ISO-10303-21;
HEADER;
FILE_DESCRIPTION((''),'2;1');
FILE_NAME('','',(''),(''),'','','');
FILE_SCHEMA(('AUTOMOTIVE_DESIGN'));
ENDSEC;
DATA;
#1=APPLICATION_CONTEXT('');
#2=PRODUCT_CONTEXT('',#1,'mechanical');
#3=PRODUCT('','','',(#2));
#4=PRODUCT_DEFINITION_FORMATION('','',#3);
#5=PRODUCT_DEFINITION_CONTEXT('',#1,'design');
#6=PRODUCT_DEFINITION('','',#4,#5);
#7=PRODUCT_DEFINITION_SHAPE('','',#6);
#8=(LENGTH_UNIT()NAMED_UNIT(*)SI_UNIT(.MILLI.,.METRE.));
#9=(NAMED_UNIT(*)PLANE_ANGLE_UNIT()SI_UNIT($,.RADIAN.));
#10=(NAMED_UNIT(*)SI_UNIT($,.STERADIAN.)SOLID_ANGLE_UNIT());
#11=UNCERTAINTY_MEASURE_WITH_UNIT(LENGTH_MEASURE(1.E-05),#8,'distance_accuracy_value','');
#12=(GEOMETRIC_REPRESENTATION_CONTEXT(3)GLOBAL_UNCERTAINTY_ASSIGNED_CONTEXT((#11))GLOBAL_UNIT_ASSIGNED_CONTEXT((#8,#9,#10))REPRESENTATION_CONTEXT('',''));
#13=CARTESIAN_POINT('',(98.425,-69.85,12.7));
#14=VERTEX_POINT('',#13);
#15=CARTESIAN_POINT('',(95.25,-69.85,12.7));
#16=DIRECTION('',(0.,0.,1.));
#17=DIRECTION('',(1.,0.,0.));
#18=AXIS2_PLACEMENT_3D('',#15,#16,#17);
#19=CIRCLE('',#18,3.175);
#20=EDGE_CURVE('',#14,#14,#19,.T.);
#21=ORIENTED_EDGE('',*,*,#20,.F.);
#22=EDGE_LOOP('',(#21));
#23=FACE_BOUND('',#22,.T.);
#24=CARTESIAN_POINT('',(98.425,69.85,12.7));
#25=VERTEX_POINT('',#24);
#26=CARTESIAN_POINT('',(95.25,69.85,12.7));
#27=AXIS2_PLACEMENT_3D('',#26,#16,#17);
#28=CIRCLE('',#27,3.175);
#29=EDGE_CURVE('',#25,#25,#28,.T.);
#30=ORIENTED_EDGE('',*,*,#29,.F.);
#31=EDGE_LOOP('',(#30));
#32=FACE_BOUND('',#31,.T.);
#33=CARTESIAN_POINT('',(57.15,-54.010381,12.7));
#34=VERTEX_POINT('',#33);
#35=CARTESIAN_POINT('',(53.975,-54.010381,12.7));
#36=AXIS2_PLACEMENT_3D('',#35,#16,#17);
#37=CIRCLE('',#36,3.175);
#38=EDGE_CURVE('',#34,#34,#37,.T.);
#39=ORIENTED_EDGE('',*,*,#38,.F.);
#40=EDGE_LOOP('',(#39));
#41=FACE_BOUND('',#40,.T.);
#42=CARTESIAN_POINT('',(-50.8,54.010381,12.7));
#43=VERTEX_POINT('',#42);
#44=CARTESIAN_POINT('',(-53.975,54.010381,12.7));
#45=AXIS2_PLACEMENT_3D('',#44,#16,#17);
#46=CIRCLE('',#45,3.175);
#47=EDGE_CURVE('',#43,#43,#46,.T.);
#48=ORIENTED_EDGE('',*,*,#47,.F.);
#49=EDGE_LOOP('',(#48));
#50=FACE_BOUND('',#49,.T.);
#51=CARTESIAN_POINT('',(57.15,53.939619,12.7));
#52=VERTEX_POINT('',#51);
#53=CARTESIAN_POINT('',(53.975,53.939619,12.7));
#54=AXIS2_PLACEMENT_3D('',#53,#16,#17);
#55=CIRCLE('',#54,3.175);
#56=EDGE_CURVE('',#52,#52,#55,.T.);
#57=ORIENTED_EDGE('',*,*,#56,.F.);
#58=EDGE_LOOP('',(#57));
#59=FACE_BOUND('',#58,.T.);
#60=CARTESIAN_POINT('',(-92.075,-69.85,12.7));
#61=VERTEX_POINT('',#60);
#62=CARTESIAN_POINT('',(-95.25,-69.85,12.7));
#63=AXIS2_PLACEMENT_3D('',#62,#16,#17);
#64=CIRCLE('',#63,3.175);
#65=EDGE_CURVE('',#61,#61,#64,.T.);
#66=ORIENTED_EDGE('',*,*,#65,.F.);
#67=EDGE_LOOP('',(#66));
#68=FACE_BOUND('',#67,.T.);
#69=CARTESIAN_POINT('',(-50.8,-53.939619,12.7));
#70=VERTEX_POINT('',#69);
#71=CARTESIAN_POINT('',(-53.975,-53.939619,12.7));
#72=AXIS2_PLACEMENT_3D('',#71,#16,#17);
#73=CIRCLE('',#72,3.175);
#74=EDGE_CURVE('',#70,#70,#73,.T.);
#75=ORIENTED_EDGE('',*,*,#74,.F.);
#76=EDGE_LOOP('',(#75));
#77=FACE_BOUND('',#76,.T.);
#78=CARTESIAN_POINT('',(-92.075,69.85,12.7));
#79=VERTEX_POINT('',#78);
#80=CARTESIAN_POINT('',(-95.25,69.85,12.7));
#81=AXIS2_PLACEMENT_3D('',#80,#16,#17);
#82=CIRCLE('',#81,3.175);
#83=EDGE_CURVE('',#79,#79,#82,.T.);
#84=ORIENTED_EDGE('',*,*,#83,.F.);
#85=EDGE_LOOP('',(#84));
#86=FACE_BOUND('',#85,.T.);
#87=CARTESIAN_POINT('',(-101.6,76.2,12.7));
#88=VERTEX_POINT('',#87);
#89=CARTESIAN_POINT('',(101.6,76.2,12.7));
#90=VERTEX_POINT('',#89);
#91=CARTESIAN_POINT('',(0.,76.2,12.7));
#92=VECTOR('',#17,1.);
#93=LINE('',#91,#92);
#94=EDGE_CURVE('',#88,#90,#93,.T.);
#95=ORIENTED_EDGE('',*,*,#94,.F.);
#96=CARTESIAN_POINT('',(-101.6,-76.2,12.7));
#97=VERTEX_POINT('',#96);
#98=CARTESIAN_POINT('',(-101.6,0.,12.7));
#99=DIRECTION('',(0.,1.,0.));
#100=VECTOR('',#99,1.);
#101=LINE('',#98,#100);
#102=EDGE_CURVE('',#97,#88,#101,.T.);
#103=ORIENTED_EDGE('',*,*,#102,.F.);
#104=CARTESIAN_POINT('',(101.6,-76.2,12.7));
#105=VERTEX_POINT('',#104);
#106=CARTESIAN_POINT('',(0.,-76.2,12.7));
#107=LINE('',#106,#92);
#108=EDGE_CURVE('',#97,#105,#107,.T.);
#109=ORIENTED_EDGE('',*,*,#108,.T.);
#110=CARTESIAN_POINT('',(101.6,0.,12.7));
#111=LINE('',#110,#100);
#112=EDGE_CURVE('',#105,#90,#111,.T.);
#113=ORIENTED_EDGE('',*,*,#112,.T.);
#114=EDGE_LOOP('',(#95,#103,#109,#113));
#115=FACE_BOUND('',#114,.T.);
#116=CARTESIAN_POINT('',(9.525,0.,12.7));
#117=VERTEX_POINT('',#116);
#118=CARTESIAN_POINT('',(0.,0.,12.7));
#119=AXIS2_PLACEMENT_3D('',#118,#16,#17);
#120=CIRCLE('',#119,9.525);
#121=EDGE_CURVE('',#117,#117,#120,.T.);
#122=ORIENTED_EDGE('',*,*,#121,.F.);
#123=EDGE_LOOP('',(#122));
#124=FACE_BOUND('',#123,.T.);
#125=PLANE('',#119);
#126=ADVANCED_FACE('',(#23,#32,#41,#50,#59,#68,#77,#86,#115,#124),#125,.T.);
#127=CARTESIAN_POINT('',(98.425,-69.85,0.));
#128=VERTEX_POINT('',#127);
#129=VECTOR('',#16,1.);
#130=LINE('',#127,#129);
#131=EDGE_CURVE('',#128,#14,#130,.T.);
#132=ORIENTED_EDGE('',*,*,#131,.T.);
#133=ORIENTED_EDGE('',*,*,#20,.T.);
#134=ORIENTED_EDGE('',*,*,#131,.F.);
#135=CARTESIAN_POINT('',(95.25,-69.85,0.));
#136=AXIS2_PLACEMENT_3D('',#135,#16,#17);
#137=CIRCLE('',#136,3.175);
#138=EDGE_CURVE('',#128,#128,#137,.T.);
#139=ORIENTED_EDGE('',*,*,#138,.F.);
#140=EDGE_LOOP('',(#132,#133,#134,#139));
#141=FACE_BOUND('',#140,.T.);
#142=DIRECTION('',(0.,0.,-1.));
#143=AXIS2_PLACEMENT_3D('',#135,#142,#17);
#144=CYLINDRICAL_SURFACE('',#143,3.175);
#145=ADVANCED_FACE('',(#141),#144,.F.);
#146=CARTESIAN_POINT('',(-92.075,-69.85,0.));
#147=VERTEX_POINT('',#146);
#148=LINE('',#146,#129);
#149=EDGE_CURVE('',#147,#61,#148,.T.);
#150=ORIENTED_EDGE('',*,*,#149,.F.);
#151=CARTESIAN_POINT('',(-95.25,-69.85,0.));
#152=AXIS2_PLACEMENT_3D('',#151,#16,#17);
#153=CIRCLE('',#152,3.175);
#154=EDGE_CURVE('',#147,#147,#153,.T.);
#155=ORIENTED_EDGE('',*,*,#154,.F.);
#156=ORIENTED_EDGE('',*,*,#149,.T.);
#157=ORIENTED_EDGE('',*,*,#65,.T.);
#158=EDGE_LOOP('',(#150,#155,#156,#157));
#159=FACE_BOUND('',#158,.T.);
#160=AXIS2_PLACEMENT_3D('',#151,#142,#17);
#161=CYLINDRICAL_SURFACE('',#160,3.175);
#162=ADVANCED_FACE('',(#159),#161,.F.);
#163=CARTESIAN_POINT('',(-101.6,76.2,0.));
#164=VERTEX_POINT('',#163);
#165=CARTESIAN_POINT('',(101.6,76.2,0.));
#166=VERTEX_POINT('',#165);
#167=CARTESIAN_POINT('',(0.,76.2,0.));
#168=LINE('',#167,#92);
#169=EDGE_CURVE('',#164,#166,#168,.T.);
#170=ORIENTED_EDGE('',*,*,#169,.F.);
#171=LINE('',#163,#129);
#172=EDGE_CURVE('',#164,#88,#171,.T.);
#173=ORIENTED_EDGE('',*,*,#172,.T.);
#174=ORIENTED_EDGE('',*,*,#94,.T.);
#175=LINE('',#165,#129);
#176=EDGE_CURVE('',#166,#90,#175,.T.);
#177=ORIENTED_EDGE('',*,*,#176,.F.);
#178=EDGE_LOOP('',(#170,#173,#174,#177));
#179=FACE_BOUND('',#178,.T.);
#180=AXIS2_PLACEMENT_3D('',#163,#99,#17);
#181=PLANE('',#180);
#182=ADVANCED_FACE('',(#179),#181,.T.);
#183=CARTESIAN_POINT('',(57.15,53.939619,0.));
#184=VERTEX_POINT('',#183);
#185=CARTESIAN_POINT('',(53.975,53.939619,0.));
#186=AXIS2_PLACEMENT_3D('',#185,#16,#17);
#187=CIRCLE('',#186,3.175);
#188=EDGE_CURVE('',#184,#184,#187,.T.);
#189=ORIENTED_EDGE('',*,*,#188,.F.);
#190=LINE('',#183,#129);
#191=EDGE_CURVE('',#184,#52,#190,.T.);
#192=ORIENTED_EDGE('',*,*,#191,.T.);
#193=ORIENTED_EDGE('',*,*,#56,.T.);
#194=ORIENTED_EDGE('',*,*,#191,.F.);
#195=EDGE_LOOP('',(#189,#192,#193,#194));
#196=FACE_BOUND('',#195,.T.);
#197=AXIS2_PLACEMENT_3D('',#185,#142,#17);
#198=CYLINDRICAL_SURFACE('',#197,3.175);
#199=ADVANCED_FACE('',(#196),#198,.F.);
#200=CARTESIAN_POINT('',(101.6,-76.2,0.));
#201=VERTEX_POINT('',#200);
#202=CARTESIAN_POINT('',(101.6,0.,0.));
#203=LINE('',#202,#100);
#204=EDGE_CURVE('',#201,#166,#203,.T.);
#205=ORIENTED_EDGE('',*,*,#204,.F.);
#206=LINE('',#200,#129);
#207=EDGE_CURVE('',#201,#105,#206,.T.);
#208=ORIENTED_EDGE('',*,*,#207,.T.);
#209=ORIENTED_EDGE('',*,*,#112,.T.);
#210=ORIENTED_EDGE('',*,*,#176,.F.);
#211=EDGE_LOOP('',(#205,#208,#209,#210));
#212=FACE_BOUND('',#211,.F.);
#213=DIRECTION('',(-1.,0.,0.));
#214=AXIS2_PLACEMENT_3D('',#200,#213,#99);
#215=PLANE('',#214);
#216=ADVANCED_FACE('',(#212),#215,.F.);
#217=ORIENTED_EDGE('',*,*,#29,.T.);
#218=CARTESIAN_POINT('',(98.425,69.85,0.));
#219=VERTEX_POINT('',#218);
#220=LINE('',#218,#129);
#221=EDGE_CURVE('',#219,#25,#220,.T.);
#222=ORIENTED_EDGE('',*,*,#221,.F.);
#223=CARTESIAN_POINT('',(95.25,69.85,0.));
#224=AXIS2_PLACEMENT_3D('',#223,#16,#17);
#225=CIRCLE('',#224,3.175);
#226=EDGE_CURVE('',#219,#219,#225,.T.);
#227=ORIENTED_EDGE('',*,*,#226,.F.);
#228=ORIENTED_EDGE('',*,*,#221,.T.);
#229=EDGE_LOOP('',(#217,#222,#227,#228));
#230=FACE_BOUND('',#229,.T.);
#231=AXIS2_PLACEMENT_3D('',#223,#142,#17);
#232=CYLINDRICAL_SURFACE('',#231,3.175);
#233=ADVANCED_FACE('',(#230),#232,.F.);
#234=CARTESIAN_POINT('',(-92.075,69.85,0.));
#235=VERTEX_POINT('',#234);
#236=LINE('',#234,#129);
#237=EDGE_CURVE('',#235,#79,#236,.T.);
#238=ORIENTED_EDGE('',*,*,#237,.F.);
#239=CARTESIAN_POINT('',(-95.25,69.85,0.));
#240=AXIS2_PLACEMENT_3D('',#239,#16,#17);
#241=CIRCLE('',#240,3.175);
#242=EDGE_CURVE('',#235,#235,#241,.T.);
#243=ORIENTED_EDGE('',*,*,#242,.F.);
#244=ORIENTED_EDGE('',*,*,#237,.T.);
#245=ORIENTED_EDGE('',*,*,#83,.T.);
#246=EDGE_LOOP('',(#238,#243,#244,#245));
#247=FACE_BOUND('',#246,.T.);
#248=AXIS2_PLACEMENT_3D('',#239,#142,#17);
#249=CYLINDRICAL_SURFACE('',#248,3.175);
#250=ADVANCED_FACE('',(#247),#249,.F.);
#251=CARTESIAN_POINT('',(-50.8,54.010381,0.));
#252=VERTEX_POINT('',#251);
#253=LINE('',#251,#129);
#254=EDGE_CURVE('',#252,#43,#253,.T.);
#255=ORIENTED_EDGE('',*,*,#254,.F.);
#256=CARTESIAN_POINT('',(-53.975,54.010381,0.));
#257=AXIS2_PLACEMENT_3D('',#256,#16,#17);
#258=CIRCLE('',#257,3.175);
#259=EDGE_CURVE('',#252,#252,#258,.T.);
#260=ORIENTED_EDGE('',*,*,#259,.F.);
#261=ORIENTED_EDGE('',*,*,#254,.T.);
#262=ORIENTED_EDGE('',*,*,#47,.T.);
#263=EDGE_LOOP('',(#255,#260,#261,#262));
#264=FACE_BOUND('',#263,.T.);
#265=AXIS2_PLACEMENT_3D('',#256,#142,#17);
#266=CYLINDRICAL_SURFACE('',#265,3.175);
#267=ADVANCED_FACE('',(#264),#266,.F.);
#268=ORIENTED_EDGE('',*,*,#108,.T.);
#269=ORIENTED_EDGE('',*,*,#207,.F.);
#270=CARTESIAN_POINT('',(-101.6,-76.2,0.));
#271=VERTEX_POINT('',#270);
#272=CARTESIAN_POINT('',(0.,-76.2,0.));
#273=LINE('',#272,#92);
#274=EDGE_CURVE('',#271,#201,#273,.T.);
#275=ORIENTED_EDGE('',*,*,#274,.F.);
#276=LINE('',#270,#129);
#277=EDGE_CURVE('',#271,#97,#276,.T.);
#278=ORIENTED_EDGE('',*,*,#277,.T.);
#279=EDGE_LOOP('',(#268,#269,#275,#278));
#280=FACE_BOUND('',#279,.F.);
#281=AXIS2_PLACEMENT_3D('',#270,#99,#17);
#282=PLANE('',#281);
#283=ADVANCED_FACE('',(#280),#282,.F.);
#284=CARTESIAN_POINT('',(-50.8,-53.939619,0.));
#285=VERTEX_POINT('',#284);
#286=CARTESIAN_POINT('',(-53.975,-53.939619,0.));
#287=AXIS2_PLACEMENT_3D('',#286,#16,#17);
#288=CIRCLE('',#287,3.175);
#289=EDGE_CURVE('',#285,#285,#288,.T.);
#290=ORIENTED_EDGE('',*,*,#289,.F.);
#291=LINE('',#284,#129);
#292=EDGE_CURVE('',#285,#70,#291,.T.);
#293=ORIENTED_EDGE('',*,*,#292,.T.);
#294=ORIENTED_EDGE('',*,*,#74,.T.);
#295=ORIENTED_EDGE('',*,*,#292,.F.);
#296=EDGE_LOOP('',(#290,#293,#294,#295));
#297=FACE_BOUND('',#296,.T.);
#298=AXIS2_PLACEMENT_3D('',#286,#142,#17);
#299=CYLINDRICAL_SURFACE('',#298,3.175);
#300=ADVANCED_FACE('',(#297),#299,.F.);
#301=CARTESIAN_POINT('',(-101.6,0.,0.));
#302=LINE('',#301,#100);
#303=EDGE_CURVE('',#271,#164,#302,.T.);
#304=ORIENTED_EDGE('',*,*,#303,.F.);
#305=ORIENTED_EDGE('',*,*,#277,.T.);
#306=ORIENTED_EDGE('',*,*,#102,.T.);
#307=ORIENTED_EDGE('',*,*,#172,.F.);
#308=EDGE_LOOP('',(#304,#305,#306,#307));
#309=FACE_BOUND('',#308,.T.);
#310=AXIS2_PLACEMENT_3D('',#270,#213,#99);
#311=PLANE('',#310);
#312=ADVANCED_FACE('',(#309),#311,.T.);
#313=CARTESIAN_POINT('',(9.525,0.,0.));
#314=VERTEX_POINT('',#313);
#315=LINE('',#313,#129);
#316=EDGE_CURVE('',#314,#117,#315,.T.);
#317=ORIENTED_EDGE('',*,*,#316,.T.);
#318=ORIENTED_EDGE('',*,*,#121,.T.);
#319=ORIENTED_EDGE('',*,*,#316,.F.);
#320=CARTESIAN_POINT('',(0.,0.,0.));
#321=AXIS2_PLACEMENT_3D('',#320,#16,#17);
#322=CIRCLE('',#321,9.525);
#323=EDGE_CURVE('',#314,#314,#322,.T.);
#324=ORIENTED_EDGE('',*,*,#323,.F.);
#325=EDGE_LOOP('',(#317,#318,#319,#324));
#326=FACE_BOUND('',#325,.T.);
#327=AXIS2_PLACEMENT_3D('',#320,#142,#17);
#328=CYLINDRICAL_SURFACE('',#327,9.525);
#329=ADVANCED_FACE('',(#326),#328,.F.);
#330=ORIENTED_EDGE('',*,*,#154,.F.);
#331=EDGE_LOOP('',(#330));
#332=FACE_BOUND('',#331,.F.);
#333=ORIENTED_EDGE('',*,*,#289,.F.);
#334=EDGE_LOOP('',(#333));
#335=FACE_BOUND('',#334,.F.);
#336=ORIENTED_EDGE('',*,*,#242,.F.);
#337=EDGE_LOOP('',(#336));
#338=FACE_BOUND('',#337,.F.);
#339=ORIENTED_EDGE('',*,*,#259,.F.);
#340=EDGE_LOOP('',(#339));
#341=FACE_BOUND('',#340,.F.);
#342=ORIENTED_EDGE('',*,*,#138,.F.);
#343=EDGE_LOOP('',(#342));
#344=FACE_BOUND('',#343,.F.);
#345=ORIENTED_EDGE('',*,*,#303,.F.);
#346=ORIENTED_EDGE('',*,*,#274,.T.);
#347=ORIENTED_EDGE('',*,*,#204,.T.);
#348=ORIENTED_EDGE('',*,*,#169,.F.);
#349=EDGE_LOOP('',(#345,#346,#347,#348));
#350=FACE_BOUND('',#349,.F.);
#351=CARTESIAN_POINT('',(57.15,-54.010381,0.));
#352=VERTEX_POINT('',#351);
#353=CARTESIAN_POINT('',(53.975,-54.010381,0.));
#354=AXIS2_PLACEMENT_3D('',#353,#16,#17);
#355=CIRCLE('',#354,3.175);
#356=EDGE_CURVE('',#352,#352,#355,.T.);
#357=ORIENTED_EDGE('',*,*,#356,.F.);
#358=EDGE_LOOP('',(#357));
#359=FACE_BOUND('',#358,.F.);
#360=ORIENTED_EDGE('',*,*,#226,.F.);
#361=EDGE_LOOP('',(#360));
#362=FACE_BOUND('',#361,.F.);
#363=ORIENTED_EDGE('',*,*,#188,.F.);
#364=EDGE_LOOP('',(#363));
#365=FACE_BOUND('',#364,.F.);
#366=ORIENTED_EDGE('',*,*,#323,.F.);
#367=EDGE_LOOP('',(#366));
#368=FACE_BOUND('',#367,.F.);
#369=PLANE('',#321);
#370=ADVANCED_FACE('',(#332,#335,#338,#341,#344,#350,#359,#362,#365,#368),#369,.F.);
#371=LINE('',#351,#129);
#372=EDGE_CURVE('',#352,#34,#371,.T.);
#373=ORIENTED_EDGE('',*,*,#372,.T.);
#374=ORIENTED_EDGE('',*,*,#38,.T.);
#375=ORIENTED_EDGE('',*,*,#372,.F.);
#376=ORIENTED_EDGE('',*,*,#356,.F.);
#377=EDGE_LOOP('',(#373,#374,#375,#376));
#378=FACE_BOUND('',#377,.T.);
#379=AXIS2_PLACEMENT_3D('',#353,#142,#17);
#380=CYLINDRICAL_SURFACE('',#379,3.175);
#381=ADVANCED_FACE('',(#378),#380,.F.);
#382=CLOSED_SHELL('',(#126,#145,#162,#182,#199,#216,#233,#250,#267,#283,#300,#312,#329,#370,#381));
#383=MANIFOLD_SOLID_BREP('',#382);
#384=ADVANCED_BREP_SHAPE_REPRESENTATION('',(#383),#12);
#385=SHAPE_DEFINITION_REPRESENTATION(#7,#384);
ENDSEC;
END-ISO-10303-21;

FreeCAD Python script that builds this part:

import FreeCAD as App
import Part
import Sketcher
from FreeCAD import Vector
Q = App.Units.Quantity

doc = App.newDocument("Part")
body = doc.addObject("PartDesign::Body", "Body")

sketch1 = body.newObject("Sketcher::SketchObject", "Sketch")
sketch1.AttachmentSupport = (doc.getObject("XY_Plane"), [""])
sketch1.MapMode = "FlatFace"
sketch1.addGeometry([
    Part.LineSegment(Vector(-101.6, 76.2, 0), Vector(-101.6, -76.2, 0)),
    Part.LineSegment(Vector(-101.6, -76.2, 0), Vector(101.6, -76.2, 0)),
    Part.LineSegment(Vector(101.6, -76.2, 0), Vector(101.6, 76.2, 0)),
    Part.LineSegment(Vector(101.6, 76.2, 0), Vector(-101.6, 76.2, 0)),
    Part.Circle(Vector(-95.25, -69.85, 0), Vector(0, 0, 1), 3.175),
    Part.Circle(Vector(-53.975, -53.939619, 0), Vector(0, 0, 1), 3.175),
    Part.Circle(Vector(95.25, -69.85, 0), Vector(0, 0, 1), 3.175),
    Part.Circle(Vector(53.975, -54.010381, 0), Vector(0, 0, 1), 3.175),
    Part.Circle(Vector(-53.975, 54.010381, 0), Vector(0, 0, 1), 3.175),
    Part.Circle(Vector(-95.25, 69.85, 0), Vector(0, 0, 1), 3.175),
    Part.Circle(Vector(0, 0, 0), Vector(0, 0, 1), 9.525),
    Part.Circle(Vector(53.975, 53.939619, 0), Vector(0, 0, 1), 3.175),
    Part.Circle(Vector(95.25, 69.85, 0), Vector(0, 0, 1), 3.175),
], False)
sketch1.addConstraint([
    Sketcher.Constraint("Coincident", 0, 2, 1, 1),
    Sketcher.Constraint("Coincident", 1, 2, 2, 1),
    Sketcher.Constraint("Coincident", 2, 2, 3, 1),
    Sketcher.Constraint("Coincident", 3, 2, 0, 1),
    Sketcher.Constraint("Vertical", 0),
    Sketcher.Constraint("Horizontal", 1),
    Sketcher.Constraint("Vertical", 2),
    Sketcher.Constraint("Horizontal", 3),
    Sketcher.Constraint("Coincident", 10, 3, -1, 1),
    Sketcher.Constraint("Equal", 4, 5),
    Sketcher.Constraint("Equal", 5, 6),
    Sketcher.Constraint("Equal", 6, 7),
    Sketcher.Constraint("Equal", 7, 8),
    Sketcher.Constraint("Equal", 8, 9),
    Sketcher.Constraint("Equal", 9, 11),
    Sketcher.Constraint("Equal", 11, 12),
    Sketcher.Constraint("Symmetric", 7, 3, 8, 3, -1, 1),
    Sketcher.Constraint("Symmetric", 6, 3, 9, 3, -1, 1),
    Sketcher.Constraint("Symmetric", 5, 3, 11, 3, -1, 1),
    Sketcher.Constraint("Symmetric", 4, 3, 12, 3, -1, 1),
    Sketcher.Constraint("Symmetric", 0, 2, 2, 2, -1, 1),
    Sketcher.Constraint("Symmetric", 4, 3, 6, 3, -2),
    Sketcher.Constraint("Vertical", 5, 3, 8, 3),
    Sketcher.Constraint("Diameter", 4, Q("0.25 in")),
    Sketcher.Constraint("Diameter", 10, Q("0.75 in")),
    Sketcher.Constraint("DistanceX", 1, 1, 1, 2, Q("8 in")),
    Sketcher.Constraint("DistanceY", 0, 2, 0, 1, Q("6 in")),
    Sketcher.Constraint("DistanceX", 4, 3, 6, 3, Q("7.5 in")),
    Sketcher.Constraint("DistanceY", 4, 3, 9, 3, Q("5.5 in")),
    Sketcher.Constraint("DistanceX", 5, 3, 7, 3, Q("4.25 in")),
    Sketcher.Constraint("DistanceY", 5, 3, 8, 3, Q("4.25 in")),
    Sketcher.Constraint("DistanceY", 5, 3, -1, 1, Q("53.939619 mm")),
])
pad1 = body.newObject("PartDesign::Pad", "Pad")
pad1.Profile = sketch1
pad1.Length = Q("0.5 in")

doc.recompute()
